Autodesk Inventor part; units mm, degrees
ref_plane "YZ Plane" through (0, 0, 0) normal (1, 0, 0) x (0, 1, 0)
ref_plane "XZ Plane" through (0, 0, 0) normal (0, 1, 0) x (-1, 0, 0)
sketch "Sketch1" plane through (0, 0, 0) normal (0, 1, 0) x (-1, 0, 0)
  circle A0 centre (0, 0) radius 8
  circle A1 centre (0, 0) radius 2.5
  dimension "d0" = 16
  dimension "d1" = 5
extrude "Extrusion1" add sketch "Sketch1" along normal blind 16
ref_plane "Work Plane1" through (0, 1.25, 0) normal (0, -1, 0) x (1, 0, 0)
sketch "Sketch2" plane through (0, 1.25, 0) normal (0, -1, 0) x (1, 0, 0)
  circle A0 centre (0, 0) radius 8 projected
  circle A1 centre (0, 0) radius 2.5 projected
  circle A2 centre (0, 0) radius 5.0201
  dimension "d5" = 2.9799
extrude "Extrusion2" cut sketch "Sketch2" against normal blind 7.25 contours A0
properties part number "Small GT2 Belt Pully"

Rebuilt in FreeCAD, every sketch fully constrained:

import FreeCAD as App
import Part
import Sketcher
from FreeCAD import Vector
Q = App.Units.Quantity

doc = App.newDocument("Part")
body = doc.addObject("PartDesign::Body", "Body")

# Sketch on XZ plane
sketch1 = doc.addObject("Sketcher::SketchObject", "Sketch")
body.addObject(sketch1)
sketch1.AttachmentSupport = (doc.XZ_Plane, [""])
sketch1.MapMode = "FlatFace"
sketch1.addGeometry(Part.Circle(Vector(0, 0, 0), Vector(0, 0, 1), 8), False)
sketch1.addGeometry(Part.Circle(Vector(0, 0, 0), Vector(0, 0, 1), 2.5), False)
sketch1.addConstraint(Sketcher.Constraint("Coincident", 0, 3, -1, 1))
sketch1.addConstraint(Sketcher.Constraint("Coincident", 1, 3, -1, 1))
sketch1.addConstraint(Sketcher.Constraint("Diameter", 0, Q("16 mm")))
sketch1.addConstraint(Sketcher.Constraint("Diameter", 1, Q("5 mm")))
pad1 = doc.addObject("PartDesign::Pad", "Pad")
body.addObject(pad1)
pad1.Profile = sketch1
pad1.Length = 16
pad1.Reversed = True

# Sketch on XZ plane
sketch2 = doc.addObject("Sketcher::SketchObject", "Sketch001")
body.addObject(sketch2)
sketch2.AttachmentSupport = (doc.XZ_Plane, [""])
sketch2.MapMode = "FlatFace"
sketch2.AttachmentOffset = App.Placement(Vector(0, 0, -1.25), App.Rotation())
sketch2.addGeometry(Part.Circle(Vector(0, 0, 0), Vector(0, 0, 1), 8), False)
sketch2.addGeometry(Part.Circle(Vector(0, 0, 0), Vector(0, 0, 1), 5), False)
sketch2.addConstraint(Sketcher.Constraint("Coincident", 0, 3, -1, 1))
sketch2.addConstraint(Sketcher.Constraint("Coincident", 1, 3, -1, 1))
sketch2.addConstraint(Sketcher.Constraint("Diameter", 0, Q("16 mm")))
sketch2.addConstraint(Sketcher.Constraint("Diameter", 1, Q("10.0402 mm")))
pocket1 = doc.addObject("PartDesign::Pocket", "Pocket")
body.addObject(pocket1)
pocket1.Profile = sketch2
pocket1.Length = 7.25

doc.recompute()
